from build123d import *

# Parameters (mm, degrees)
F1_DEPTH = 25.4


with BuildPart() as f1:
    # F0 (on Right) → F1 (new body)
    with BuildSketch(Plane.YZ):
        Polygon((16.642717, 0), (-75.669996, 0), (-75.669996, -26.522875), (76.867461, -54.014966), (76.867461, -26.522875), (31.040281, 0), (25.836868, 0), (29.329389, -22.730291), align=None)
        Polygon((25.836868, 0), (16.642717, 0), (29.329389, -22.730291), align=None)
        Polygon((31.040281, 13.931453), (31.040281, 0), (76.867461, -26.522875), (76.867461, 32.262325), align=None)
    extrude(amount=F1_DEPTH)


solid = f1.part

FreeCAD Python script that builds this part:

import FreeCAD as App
import Part
import Sketcher

V = App.Vector

doc = App.newDocument("Part")
params = doc.addObject("Spreadsheet::Sheet", "Params")
for row, (alias, value) in enumerate([
    ("pad1_length", "1 in"),
], start=1):
    params.set(f"A{row}", alias)
    params.set(f"B{row}", "=" + value)
    params.setAlias(f"B{row}", alias)

body = doc.addObject("PartDesign::Body", "Body")

# Sketch on YZ plane
sketch1 = doc.addObject("Sketcher::SketchObject", "Sketch")
body.addObject(sketch1)
sketch1.AttachmentSupport = (doc.YZ_Plane, [""])
sketch1.MapMode = "FlatFace"
sketch1.addGeometry(Part.LineSegment(V(-76, 0, 0), V(-76, -27, 0)), False)
sketch1.addGeometry(Part.LineSegment(V(-76, -27, 0), V(77, -54, 0)), False)
sketch1.addGeometry(Part.LineSegment(V(77, -54, 0), V(77, 32, 0)), False)
sketch1.addGeometry(Part.LineSegment(V(77, 32, 0), V(31, 14, 0)), False)
sketch1.addGeometry(Part.LineSegment(V(31, 14, 0), V(31, 0, 0)), False)
sketch1.addGeometry(Part.LineSegment(V(31, 0, 0), V(-76, 0, 0)), False)
sketch1.addConstraint(Sketcher.Constraint("Coincident", 0, 2, 1, 1))
sketch1.addConstraint(Sketcher.Constraint("Coincident", 1, 2, 2, 1))
sketch1.addConstraint(Sketcher.Constraint("Coincident", 2, 2, 3, 1))
sketch1.addConstraint(Sketcher.Constraint("Coincident", 3, 2, 4, 1))
sketch1.addConstraint(Sketcher.Constraint("Coincident", 4, 2, 5, 1))
sketch1.addConstraint(Sketcher.Constraint("Coincident", 5, 2, 0, 1))
sketch1.addConstraint(Sketcher.Constraint("Vertical", 0))
sketch1.addConstraint(Sketcher.Constraint("Vertical", 2))
sketch1.addConstraint(Sketcher.Constraint("Vertical", 4))
sketch1.addConstraint(Sketcher.Constraint("Horizontal", 5))
sketch1.addConstraint(Sketcher.Constraint("PointOnObject", 4, 2, -1))
sketch1.addConstraint(Sketcher.Constraint("DistanceY", 2, 1, 2, 2, 86.277291))
sketch1.addConstraint(Sketcher.Constraint("DistanceY", 0, 2, 2, 2, 58.7852))
sketch1.addConstraint(Sketcher.Constraint("Distance", 1, 154.995132))
sketch1.addConstraint(Sketcher.Constraint("DistanceX", 5, 2, 5, 1, 106.710277))
sketch1.addConstraint(Sketcher.Constraint("DistanceY", 0, 2, 0, 1, 26.522875))
sketch1.addConstraint(Sketcher.Constraint("DistanceY", 4, 2, 4, 1, 13.931453))
sketch1.addConstraint(Sketcher.Constraint("DistanceX", -1, 1, 1, 2, 76.867461))
pad1 = doc.addObject("PartDesign::Pad", "Pad")
body.addObject(pad1)
pad1.Profile = sketch1
pad1.setExpression("Length", "Params.pad1_length")

doc.recompute()
